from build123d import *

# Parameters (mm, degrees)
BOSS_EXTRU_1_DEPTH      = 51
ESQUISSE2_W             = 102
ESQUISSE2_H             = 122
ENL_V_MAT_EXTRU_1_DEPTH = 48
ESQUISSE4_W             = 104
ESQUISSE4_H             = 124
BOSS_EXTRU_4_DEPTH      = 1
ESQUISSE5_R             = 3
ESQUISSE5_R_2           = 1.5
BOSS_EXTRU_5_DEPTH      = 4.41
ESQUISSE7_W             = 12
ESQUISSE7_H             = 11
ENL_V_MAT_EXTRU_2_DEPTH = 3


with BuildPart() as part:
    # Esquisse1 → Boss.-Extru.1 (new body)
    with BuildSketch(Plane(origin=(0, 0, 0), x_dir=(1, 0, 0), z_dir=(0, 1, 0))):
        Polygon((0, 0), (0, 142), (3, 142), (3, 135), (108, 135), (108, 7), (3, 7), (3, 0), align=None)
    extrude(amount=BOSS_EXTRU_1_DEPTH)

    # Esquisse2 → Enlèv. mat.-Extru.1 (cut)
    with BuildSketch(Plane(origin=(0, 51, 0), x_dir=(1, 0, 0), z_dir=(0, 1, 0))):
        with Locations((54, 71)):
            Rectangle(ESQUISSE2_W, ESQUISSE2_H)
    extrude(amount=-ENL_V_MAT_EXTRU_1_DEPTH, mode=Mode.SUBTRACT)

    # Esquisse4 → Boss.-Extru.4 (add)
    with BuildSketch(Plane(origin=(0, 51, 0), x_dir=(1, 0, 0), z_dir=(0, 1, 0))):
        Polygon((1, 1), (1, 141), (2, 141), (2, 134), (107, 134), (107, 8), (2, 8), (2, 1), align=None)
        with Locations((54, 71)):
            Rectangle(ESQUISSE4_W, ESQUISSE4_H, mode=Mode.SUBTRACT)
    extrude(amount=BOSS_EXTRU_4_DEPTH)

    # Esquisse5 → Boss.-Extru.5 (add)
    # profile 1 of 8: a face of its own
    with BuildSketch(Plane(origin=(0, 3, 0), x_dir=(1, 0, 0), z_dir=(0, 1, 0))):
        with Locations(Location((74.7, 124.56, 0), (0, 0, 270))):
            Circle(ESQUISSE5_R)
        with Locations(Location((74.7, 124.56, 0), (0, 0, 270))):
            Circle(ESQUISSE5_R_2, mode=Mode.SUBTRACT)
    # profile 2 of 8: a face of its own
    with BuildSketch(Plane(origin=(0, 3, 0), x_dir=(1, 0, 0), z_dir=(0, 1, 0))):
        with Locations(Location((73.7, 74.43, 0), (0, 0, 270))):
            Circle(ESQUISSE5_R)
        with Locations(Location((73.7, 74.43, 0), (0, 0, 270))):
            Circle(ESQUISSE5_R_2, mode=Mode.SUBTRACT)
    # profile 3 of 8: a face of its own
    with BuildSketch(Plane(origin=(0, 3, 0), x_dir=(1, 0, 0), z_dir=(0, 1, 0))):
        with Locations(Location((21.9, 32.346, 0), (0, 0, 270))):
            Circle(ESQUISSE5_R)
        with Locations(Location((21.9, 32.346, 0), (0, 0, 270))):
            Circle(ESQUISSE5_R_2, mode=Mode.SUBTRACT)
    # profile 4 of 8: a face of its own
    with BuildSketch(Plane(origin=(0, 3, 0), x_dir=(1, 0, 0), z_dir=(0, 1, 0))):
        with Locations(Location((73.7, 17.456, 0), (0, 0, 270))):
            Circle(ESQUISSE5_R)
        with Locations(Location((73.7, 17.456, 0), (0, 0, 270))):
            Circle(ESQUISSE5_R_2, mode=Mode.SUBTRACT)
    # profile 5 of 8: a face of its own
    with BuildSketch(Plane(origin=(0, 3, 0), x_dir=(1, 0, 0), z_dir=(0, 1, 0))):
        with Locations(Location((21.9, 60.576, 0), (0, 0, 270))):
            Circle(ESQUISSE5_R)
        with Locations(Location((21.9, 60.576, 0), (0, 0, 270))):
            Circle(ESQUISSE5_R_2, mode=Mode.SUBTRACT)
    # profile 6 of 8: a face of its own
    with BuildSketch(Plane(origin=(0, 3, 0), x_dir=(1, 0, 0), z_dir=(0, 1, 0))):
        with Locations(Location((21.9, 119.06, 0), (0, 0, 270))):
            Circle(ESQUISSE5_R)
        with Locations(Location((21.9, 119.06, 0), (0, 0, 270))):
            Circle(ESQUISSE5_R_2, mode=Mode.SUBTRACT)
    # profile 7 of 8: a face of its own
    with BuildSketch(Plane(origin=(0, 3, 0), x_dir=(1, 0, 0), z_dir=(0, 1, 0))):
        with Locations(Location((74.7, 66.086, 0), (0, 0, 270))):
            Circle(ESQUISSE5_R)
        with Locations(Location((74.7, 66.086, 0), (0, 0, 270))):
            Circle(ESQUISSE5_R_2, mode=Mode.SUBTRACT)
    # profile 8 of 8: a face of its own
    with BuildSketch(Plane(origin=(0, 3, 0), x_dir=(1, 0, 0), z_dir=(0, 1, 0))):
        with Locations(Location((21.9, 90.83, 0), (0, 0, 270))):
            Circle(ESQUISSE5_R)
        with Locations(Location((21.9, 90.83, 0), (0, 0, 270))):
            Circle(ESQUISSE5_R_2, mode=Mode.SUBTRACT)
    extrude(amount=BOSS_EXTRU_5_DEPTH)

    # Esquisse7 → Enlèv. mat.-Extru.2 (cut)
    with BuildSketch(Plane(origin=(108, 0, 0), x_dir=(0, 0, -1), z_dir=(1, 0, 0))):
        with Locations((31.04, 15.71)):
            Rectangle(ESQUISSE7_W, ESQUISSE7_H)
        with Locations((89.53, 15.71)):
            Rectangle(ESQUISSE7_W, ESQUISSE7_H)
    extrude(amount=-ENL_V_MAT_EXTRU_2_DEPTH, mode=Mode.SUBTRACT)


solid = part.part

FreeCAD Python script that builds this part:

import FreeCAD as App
import Part
import Sketcher
from FreeCAD import Vector

doc = App.newDocument("Part")
params = doc.addObject("Spreadsheet::Sheet", "Params")
for row, (alias, value) in enumerate([
    ("sketch1_width", "3 mm"),
    ("sketch1_width2", "105 mm"),
    ("sketch1_height", "142 mm"),
    ("sketch1_height2", "7 mm"),
    ("pad1_length", "51 mm"),
    ("sketch2_width", "102 mm"),
    ("sketch2_height", "122 mm"),
    ("pocket1_length", "48 mm"),
    ("sketch3_width", "1 mm"),
    ("sketch3_width2", "105 mm"),
    ("sketch3_width3", "104 mm"),
    ("sketch3_height", "140 mm"),
    ("sketch3_height2", "7 mm"),
    ("pad2_length", "1 mm"),
    ("sketch4_diameter", "6 mm"),
    ("sketch4_diameter2", "3 mm"),
    ("pad3_length", "4.41 mm"),
    ("sketch5_width", "11 mm"),
    ("sketch5_height", "12 mm"),
    ("pocket2_length", "3 mm"),
], start=1):
    params.set(f"A{row}", alias)
    params.set(f"B{row}", "=" + value)
    params.setAlias(f"B{row}", alias)

body = doc.addObject("PartDesign::Body", "Body")

# Sketch on XZ plane
sketch1 = body.newObject("Sketcher::SketchObject", "Sketch")
sketch1.AttachmentSupport = (doc.getObject("XZ_Plane"), [""])
sketch1.MapMode = "FlatFace"
sketch1.addGeometry(Part.LineSegment(Vector(0, -142, 0), Vector(0, 0, 0)), False)
sketch1.addGeometry(Part.LineSegment(Vector(0, 0, 0), Vector(3, 0, 0)), False)
sketch1.addGeometry(Part.LineSegment(Vector(3, 0, 0), Vector(3, -7, 0)), False)
sketch1.addGeometry(Part.LineSegment(Vector(3, -7, 0), Vector(108, -7, 0)), False)
sketch1.addGeometry(Part.LineSegment(Vector(108, -7, 0), Vector(108, -135, 0)), False)
sketch1.addGeometry(Part.LineSegment(Vector(108, -135, 0), Vector(3, -135, 0)), False)
sketch1.addGeometry(Part.LineSegment(Vector(3, -135, 0), Vector(3, -142, 0)), False)
sketch1.addGeometry(Part.LineSegment(Vector(3, -142, 0), Vector(0, -142, 0)), False)
sketch1.addConstraint(Sketcher.Constraint("Coincident", 0, 2, 1, 1))
sketch1.addConstraint(Sketcher.Constraint("Coincident", 1, 2, 2, 1))
sketch1.addConstraint(Sketcher.Constraint("Coincident", 2, 2, 3, 1))
sketch1.addConstraint(Sketcher.Constraint("Coincident", 3, 2, 4, 1))
sketch1.addConstraint(Sketcher.Constraint("Coincident", 4, 2, 5, 1))
sketch1.addConstraint(Sketcher.Constraint("Coincident", 5, 2, 6, 1))
sketch1.addConstraint(Sketcher.Constraint("Coincident", 6, 2, 7, 1))
sketch1.addConstraint(Sketcher.Constraint("Coincident", 7, 2, 0, 1))
sketch1.addConstraint(Sketcher.Constraint("Vertical", 0))
sketch1.addConstraint(Sketcher.Constraint("Horizontal", 1))
sketch1.addConstraint(Sketcher.Constraint("Vertical", 2))
sketch1.addConstraint(Sketcher.Constraint("Horizontal", 3))
sketch1.addConstraint(Sketcher.Constraint("Vertical", 4))
sketch1.addConstraint(Sketcher.Constraint("Horizontal", 5))
sketch1.addConstraint(Sketcher.Constraint("Vertical", 6))
sketch1.addConstraint(Sketcher.Constraint("Horizontal", 7))
sketch1.addConstraint(Sketcher.Constraint("Coincident", 0, 2, -1, 1))
sketch1.addConstraint(Sketcher.Constraint("Vertical", 2, 2, 5, 2))
sketch1.addConstraint(Sketcher.Constraint("Equal", 2, 6))
sketch1.addConstraint(Sketcher.Constraint("DistanceX", 1, 1, 1, 2, 3.0))
sketch1.addConstraint(Sketcher.Constraint("DistanceX", 3, 1, 3, 2, 105.0))
sketch1.addConstraint(Sketcher.Constraint("DistanceY", 0, 1, 0, 2, 142.0))
sketch1.addConstraint(Sketcher.Constraint("DistanceY", 2, 2, 2, 1, 7.0))
sketch1.setExpression("Constraints[19]", "Params.sketch1_width")
sketch1.setExpression("Constraints[20]", "Params.sketch1_width2")
sketch1.setExpression("Constraints[21]", "Params.sketch1_height")
sketch1.setExpression("Constraints[22]", "Params.sketch1_height2")
pad1 = body.newObject("PartDesign::Pad", "Pad")
pad1.Profile = sketch1
pad1.setExpression("Length", "Params.pad1_length")
pad1.Reversed = True

# Sketch on XZ plane
sketch2 = body.newObject("Sketcher::SketchObject", "Sketch001")
sketch2.AttachmentSupport = (doc.getObject("XZ_Plane"), [""])
sketch2.MapMode = "FlatFace"
sketch2.AttachmentOffset = App.Placement(Vector(0, 0, -51), App.Rotation())
sketch2.addGeometry(Part.LineSegment(Vector(3, -132, 0), Vector(3, -10, 0)), False)
sketch2.addGeometry(Part.LineSegment(Vector(3, -10, 0), Vector(105, -10, 0)), False)
sketch2.addGeometry(Part.LineSegment(Vector(105, -10, 0), Vector(105, -132, 0)), False)
sketch2.addGeometry(Part.LineSegment(Vector(105, -132, 0), Vector(3, -132, 0)), False)
sketch2.addConstraint(Sketcher.Constraint("Coincident", 0, 2, 1, 1))
sketch2.addConstraint(Sketcher.Constraint("Coincident", 1, 2, 2, 1))
sketch2.addConstraint(Sketcher.Constraint("Coincident", 2, 2, 3, 1))
sketch2.addConstraint(Sketcher.Constraint("Coincident", 3, 2, 0, 1))
sketch2.addConstraint(Sketcher.Constraint("Vertical", 0))
sketch2.addConstraint(Sketcher.Constraint("Horizontal", 1))
sketch2.addConstraint(Sketcher.Constraint("Vertical", 2))
sketch2.addConstraint(Sketcher.Constraint("Horizontal", 3))
sketch2.addConstraint(Sketcher.Constraint("DistanceX", 1, 1, 1, 2, 102.0))
sketch2.addConstraint(Sketcher.Constraint("DistanceY", 0, 1, 0, 2, 122.0))
sketch2.addConstraint(Sketcher.Constraint("DistanceX", -1, 1, 0, 2, 3.0))
sketch2.addConstraint(Sketcher.Constraint("DistanceY", 0, 2, -1, 1, 10.0))
sketch2.setExpression("Constraints[8]", "Params.sketch2_width")
sketch2.setExpression("Constraints[9]", "Params.sketch2_height")
pocket1 = body.newObject("PartDesign::Pocket", "Pocket")
pocket1.Profile = sketch2
pocket1.setExpression("Length", "Params.pocket1_length")
pocket1.Reversed = True

# Sketch on XZ plane
sketch3 = body.newObject("Sketcher::SketchObject", "Sketch002")
sketch3.AttachmentSupport = (doc.getObject("XZ_Plane"), [""])
sketch3.MapMode = "FlatFace"
sketch3.AttachmentOffset = App.Placement(Vector(0, 0, -51), App.Rotation())
sketch3.addGeometry(Part.LineSegment(Vector(1, -141, 0), Vector(1, -1, 0)), False)
sketch3.addGeometry(Part.LineSegment(Vector(1, -1, 0), Vector(2, -1, 0)), False)
sketch3.addGeometry(Part.LineSegment(Vector(2, -1, 0), Vector(2, -8, 0)), False)
sketch3.addGeometry(Part.LineSegment(Vector(2, -8, 0), Vector(107, -8, 0)), False)
sketch3.addGeometry(Part.LineSegment(Vector(107, -8, 0), Vector(107, -134, 0)), False)
sketch3.addGeometry(Part.LineSegment(Vector(107, -134, 0), Vector(2, -134, 0)), False)
sketch3.addGeometry(Part.LineSegment(Vector(2, -134, 0), Vector(2, -141, 0)), False)
sketch3.addGeometry(Part.LineSegment(Vector(2, -141, 0), Vector(1, -141, 0)), False)
sketch3.addGeometry(Part.LineSegment(Vector(2, -9, 0), Vector(2, -133, 0)), False)
sketch3.addGeometry(Part.LineSegment(Vector(2, -133, 0), Vector(106, -133, 0)), False)
sketch3.addGeometry(Part.LineSegment(Vector(106, -133, 0), Vector(106, -9, 0)), False)
sketch3.addGeometry(Part.LineSegment(Vector(106, -9, 0), Vector(2, -9, 0)), False)
sketch3.addConstraint(Sketcher.Constraint("Coincident", 0, 2, 1, 1))
sketch3.addConstraint(Sketcher.Constraint("Coincident", 1, 2, 2, 1))
sketch3.addConstraint(Sketcher.Constraint("Coincident", 2, 2, 3, 1))
sketch3.addConstraint(Sketcher.Constraint("Coincident", 3, 2, 4, 1))
sketch3.addConstraint(Sketcher.Constraint("Coincident", 4, 2, 5, 1))
sketch3.addConstraint(Sketcher.Constraint("Coincident", 5, 2, 6, 1))
sketch3.addConstraint(Sketcher.Constraint("Coincident", 6, 2, 7, 1))
sketch3.addConstraint(Sketcher.Constraint("Coincident", 7, 2, 0, 1))
sketch3.addConstraint(Sketcher.Constraint("Coincident", 8, 2, 9, 1))
sketch3.addConstraint(Sketcher.Constraint("Coincident", 9, 2, 10, 1))
sketch3.addConstraint(Sketcher.Constraint("Coincident", 10, 2, 11, 1))
sketch3.addConstraint(Sketcher.Constraint("Coincident", 11, 2, 8, 1))
sketch3.addConstraint(Sketcher.Constraint("Vertical", 0))
sketch3.addConstraint(Sketcher.Constraint("Horizontal", 1))
sketch3.addConstraint(Sketcher.Constraint("Vertical", 2))
sketch3.addConstraint(Sketcher.Constraint("Horizontal", 3))
sketch3.addConstraint(Sketcher.Constraint("Vertical", 4))
sketch3.addConstraint(Sketcher.Constraint("Horizontal", 5))
sketch3.addConstraint(Sketcher.Constraint("Vertical", 6))
sketch3.addConstraint(Sketcher.Constraint("Horizontal", 7))
sketch3.addConstraint(Sketcher.Constraint("Vertical", 8))
sketch3.addConstraint(Sketcher.Constraint("Horizontal", 9))
sketch3.addConstraint(Sketcher.Constraint("Vertical", 10))
sketch3.addConstraint(Sketcher.Constraint("Horizontal", 11))
sketch3.addConstraint(Sketcher.Constraint("Vertical", 2, 2, 5, 2))
sketch3.addConstraint(Sketcher.Constraint("Vertical", 6, 2, 8, 2))
sketch3.addConstraint(Sketcher.Constraint("Equal", 2, 6))
sketch3.addConstraint(Sketcher.Constraint("DistanceX", 1, 1, 1, 2, 1.0))
sketch3.addConstraint(Sketcher.Constraint("DistanceX", 3, 1, 3, 2, 105.0))
sketch3.addConstraint(Sketcher.Constraint("DistanceX", 9, 1, 9, 2, 104.0))
sketch3.addConstraint(Sketcher.Constraint("DistanceY", 0, 1, 0, 2, 140.0))
sketch3.addConstraint(Sketcher.Constraint("DistanceY", 2, 2, 2, 1, 7.0))
sketch3.addConstraint(Sketcher.Constraint("DistanceY", 8, 2, 8, 1, 124.0))
sketch3.addConstraint(Sketcher.Constraint("DistanceX", -1, 1, 0, 2, 1.0))
sketch3.addConstraint(Sketcher.Constraint("DistanceY", 0, 2, -1, 1, 1.0))
sketch3.addConstraint(Sketcher.Constraint("DistanceY", 8, 2, -1, 1, 133.0))
sketch3.setExpression("Constraints[27]", "Params.sketch3_width")
sketch3.setExpression("Constraints[28]", "Params.sketch3_width2")
sketch3.setExpression("Constraints[29]", "Params.sketch3_width3")
sketch3.setExpression("Constraints[30]", "Params.sketch3_height")
sketch3.setExpression("Constraints[31]", "Params.sketch3_height2")
pad2 = body.newObject("PartDesign::Pad", "Pad001")
pad2.Profile = sketch3
pad2.setExpression("Length", "Params.pad2_length")
pad2.Reversed = True

# Sketch on XZ plane
sketch4 = body.newObject("Sketcher::SketchObject", "Sketch003")
sketch4.AttachmentSupport = (doc.getObject("XZ_Plane"), [""])
sketch4.MapMode = "FlatFace"
sketch4.AttachmentOffset = App.Placement(Vector(0, 0, -3), App.Rotation())
sketch4.addGeometry(Part.Circle(Vector(74.7, -124.56, 0), Vector(0, 0, 1), 3), False)
sketch4.addGeometry(Part.Circle(Vector(74.7, -124.56, 0), Vector(0, 0, 1), 1.5), False)
sketch4.addGeometry(Part.Circle(Vector(73.7, -74.43, 0), Vector(0, 0, 1), 3), False)
sketch4.addGeometry(Part.Circle(Vector(73.7, -74.43, 0), Vector(0, 0, 1), 1.5), False)
sketch4.addGeometry(Part.Circle(Vector(21.9, -32.346, 0), Vector(0, 0, 1), 3), False)
sketch4.addGeometry(Part.Circle(Vector(21.9, -32.346, 0), Vector(0, 0, 1), 1.5), False)
sketch4.addGeometry(Part.Circle(Vector(73.7, -17.456, 0), Vector(0, 0, 1), 3), False)
sketch4.addGeometry(Part.Circle(Vector(73.7, -17.456, 0), Vector(0, 0, 1), 1.5), False)
sketch4.addGeometry(Part.Circle(Vector(21.9, -60.576, 0), Vector(0, 0, 1), 3), False)
sketch4.addGeometry(Part.Circle(Vector(21.9, -60.576, 0), Vector(0, 0, 1), 1.5), False)
sketch4.addGeometry(Part.Circle(Vector(21.9, -119.06, 0), Vector(0, 0, 1), 3), False)
sketch4.addGeometry(Part.Circle(Vector(21.9, -119.06, 0), Vector(0, 0, 1), 1.5), False)
sketch4.addGeometry(Part.Circle(Vector(74.7, -66.086, 0), Vector(0, 0, 1), 3), False)
sketch4.addGeometry(Part.Circle(Vector(74.7, -66.086, 0), Vector(0, 0, 1), 1.5), False)
sketch4.addGeometry(Part.Circle(Vector(21.9, -90.83, 0), Vector(0, 0, 1), 3), False)
sketch4.addGeometry(Part.Circle(Vector(21.9, -90.83, 0), Vector(0, 0, 1), 1.5), False)
sketch4.addConstraint(Sketcher.Constraint("Coincident", 1, 3, 0, 3))
sketch4.addConstraint(Sketcher.Constraint("Coincident", 3, 3, 2, 3))
sketch4.addConstraint(Sketcher.Constraint("Coincident", 5, 3, 4, 3))
sketch4.addConstraint(Sketcher.Constraint("Coincident", 7, 3, 6, 3))
sketch4.addConstraint(Sketcher.Constraint("Coincident", 9, 3, 8, 3))
sketch4.addConstraint(Sketcher.Constraint("Coincident", 11, 3, 10, 3))
sketch4.addConstraint(Sketcher.Constraint("Coincident", 13, 3, 12, 3))
sketch4.addConstraint(Sketcher.Constraint("Coincident", 15, 3, 14, 3))
sketch4.addConstraint(Sketcher.Constraint("Equal", 0, 2))
sketch4.addConstraint(Sketcher.Constraint("Equal", 1, 3))
sketch4.addConstraint(Sketcher.Constraint("Equal", 2, 4))
sketch4.addConstraint(Sketcher.Constraint("Equal", 3, 5))
sketch4.addConstraint(Sketcher.Constraint("Equal", 4, 6))
sketch4.addConstraint(Sketcher.Constraint("Equal", 5, 7))
sketch4.addConstraint(Sketcher.Constraint("Equal", 6, 8))
sketch4.addConstraint(Sketcher.Constraint("Equal", 7, 9))
sketch4.addConstraint(Sketcher.Constraint("Equal", 8, 10))
sketch4.addConstraint(Sketcher.Constraint("Equal", 9, 11))
sketch4.addConstraint(Sketcher.Constraint("Equal", 10, 12))
sketch4.addConstraint(Sketcher.Constraint("Equal", 11, 13))
sketch4.addConstraint(Sketcher.Constraint("Equal", 12, 14))
sketch4.addConstraint(Sketcher.Constraint("Equal", 13, 15))
sketch4.addConstraint(Sketcher.Constraint("Vertical", 3, 3, 6, 3))
sketch4.addConstraint(Sketcher.Constraint("Vertical", 5, 3, 8, 3))
sketch4.addConstraint(Sketcher.Constraint("Vertical", 9, 3, 10, 3))
sketch4.addConstraint(Sketcher.Constraint("Vertical", 1, 3, 12, 3))
sketch4.addConstraint(Sketcher.Constraint("Vertical", 11, 3, 14, 3))
sketch4.addConstraint(Sketcher.Constraint("Diameter", 0, 6.0))
sketch4.addConstraint(Sketcher.Constraint("Diameter", 1, 3.0))
sketch4.addConstraint(Sketcher.Constraint("DistanceX", 2, 3, 0, 3, 1.0))
sketch4.addConstraint(Sketcher.Constraint("DistanceX", -1, 1, 0, 3, 74.7))
sketch4.addConstraint(Sketcher.Constraint("DistanceX", -1, 1, 4, 3, 21.9))
sketch4.addConstraint(Sketcher.Constraint("DistanceY", 0, 3, 10, 3, 5.5))
sketch4.addConstraint(Sketcher.Constraint("DistanceY", 14, 3, 2, 3, 16.4))
sketch4.addConstraint(Sketcher.Constraint("DistanceY", 0, 3, -1, 1, 124.56))
sketch4.addConstraint(Sketcher.Constraint("DistanceY", 2, 3, -1, 1, 74.43))
sketch4.addConstraint(Sketcher.Constraint("DistanceY", 4, 3, 6, 3, 14.89))
sketch4.addConstraint(Sketcher.Constraint("DistanceY", 8, 3, 4, 3, 28.23))
sketch4.addConstraint(Sketcher.Constraint("DistanceY", 12, 3, 6, 3, 48.63))
sketch4.addConstraint(Sketcher.Constraint("DistanceY", 4, 3, -1, 1, 32.346))
sketch4.setExpression("Constraints[27]", "Params.sketch4_diameter")
sketch4.setExpression("Constraints[28]", "Params.sketch4_diameter2")
pad3 = body.newObject("PartDesign::Pad", "Pad002")
pad3.Profile = sketch4
pad3.setExpression("Length", "Params.pad3_length")
pad3.Reversed = True

# Sketch on YZ plane
sketch5 = body.newObject("Sketcher::SketchObject", "Sketch004")
sketch5.AttachmentSupport = (doc.getObject("YZ_Plane"), [""])
sketch5.MapMode = "FlatFace"
sketch5.AttachmentOffset = App.Placement(Vector(0, 0, 108), App.Rotation())
sketch5.addGeometry(Part.LineSegment(Vector(21.21, -25.04, 0), Vector(10.21, -25.04, 0)), False)
sketch5.addGeometry(Part.LineSegment(Vector(10.21, -25.04, 0), Vector(10.21, -37.04, 0)), False)
sketch5.addGeometry(Part.LineSegment(Vector(10.21, -37.04, 0), Vector(21.21, -37.04, 0)), False)
sketch5.addGeometry(Part.LineSegment(Vector(21.21, -37.04, 0), Vector(21.21, -25.04, 0)), False)
sketch5.addGeometry(Part.LineSegment(Vector(21.21, -83.53, 0), Vector(10.21, -83.53, 0)), False)
sketch5.addGeometry(Part.LineSegment(Vector(10.21, -83.53, 0), Vector(10.21, -95.53, 0)), False)
sketch5.addGeometry(Part.LineSegment(Vector(10.21, -95.53, 0), Vector(21.21, -95.53, 0)), False)
sketch5.addGeometry(Part.LineSegment(Vector(21.21, -95.53, 0), Vector(21.21, -83.53, 0)), False)
sketch5.addConstraint(Sketcher.Constraint("Coincident", 0, 2, 1, 1))
sketch5.addConstraint(Sketcher.Constraint("Coincident", 1, 2, 2, 1))
sketch5.addConstraint(Sketcher.Constraint("Coincident", 2, 2, 3, 1))
sketch5.addConstraint(Sketcher.Constraint("Coincident", 3, 2, 0, 1))
sketch5.addConstraint(Sketcher.Constraint("Coincident", 4, 2, 5, 1))
sketch5.addConstraint(Sketcher.Constraint("Coincident", 5, 2, 6, 1))
sketch5.addConstraint(Sketcher.Constraint("Coincident", 6, 2, 7, 1))
sketch5.addConstraint(Sketcher.Constraint("Coincident", 7, 2, 4, 1))
sketch5.addConstraint(Sketcher.Constraint("Horizontal", 0))
sketch5.addConstraint(Sketcher.Constraint("Vertical", 1))
sketch5.addConstraint(Sketcher.Constraint("Horizontal", 2))
sketch5.addConstraint(Sketcher.Constraint("Vertical", 3))
sketch5.addConstraint(Sketcher.Constraint("Horizontal", 4))
sketch5.addConstraint(Sketcher.Constraint("Vertical", 5))
sketch5.addConstraint(Sketcher.Constraint("Horizontal", 6))
sketch5.addConstraint(Sketcher.Constraint("Vertical", 7))
sketch5.addConstraint(Sketcher.Constraint("Vertical", 1, 2, 4, 2))
sketch5.addConstraint(Sketcher.Constraint("Vertical", 3, 2, 6, 2))
sketch5.addConstraint(Sketcher.Constraint("Equal", 3, 5))
sketch5.addConstraint(Sketcher.Constraint("DistanceX", 0, 2, 0, 1, 11.0))
sketch5.addConstraint(Sketcher.Constraint("DistanceY", 1, 2, 1, 1, 12.0))
sketch5.addConstraint(Sketcher.Constraint("DistanceX", -1, 1, 0, 2, 10.21))
sketch5.addConstraint(Sketcher.Constraint("DistanceY", 0, 2, -1, 1, 25.04))
sketch5.addConstraint(Sketcher.Constraint("DistanceY", 4, 2, -1, 1, 83.53))
sketch5.setExpression("Constraints[19]", "Params.sketch5_width")
sketch5.setExpression("Constraints[20]", "Params.sketch5_height")
pocket2 = body.newObject("PartDesign::Pocket", "Pocket001")
pocket2.Profile = sketch5
pocket2.setExpression("Length", "Params.pocket2_length")

doc.recompute()
